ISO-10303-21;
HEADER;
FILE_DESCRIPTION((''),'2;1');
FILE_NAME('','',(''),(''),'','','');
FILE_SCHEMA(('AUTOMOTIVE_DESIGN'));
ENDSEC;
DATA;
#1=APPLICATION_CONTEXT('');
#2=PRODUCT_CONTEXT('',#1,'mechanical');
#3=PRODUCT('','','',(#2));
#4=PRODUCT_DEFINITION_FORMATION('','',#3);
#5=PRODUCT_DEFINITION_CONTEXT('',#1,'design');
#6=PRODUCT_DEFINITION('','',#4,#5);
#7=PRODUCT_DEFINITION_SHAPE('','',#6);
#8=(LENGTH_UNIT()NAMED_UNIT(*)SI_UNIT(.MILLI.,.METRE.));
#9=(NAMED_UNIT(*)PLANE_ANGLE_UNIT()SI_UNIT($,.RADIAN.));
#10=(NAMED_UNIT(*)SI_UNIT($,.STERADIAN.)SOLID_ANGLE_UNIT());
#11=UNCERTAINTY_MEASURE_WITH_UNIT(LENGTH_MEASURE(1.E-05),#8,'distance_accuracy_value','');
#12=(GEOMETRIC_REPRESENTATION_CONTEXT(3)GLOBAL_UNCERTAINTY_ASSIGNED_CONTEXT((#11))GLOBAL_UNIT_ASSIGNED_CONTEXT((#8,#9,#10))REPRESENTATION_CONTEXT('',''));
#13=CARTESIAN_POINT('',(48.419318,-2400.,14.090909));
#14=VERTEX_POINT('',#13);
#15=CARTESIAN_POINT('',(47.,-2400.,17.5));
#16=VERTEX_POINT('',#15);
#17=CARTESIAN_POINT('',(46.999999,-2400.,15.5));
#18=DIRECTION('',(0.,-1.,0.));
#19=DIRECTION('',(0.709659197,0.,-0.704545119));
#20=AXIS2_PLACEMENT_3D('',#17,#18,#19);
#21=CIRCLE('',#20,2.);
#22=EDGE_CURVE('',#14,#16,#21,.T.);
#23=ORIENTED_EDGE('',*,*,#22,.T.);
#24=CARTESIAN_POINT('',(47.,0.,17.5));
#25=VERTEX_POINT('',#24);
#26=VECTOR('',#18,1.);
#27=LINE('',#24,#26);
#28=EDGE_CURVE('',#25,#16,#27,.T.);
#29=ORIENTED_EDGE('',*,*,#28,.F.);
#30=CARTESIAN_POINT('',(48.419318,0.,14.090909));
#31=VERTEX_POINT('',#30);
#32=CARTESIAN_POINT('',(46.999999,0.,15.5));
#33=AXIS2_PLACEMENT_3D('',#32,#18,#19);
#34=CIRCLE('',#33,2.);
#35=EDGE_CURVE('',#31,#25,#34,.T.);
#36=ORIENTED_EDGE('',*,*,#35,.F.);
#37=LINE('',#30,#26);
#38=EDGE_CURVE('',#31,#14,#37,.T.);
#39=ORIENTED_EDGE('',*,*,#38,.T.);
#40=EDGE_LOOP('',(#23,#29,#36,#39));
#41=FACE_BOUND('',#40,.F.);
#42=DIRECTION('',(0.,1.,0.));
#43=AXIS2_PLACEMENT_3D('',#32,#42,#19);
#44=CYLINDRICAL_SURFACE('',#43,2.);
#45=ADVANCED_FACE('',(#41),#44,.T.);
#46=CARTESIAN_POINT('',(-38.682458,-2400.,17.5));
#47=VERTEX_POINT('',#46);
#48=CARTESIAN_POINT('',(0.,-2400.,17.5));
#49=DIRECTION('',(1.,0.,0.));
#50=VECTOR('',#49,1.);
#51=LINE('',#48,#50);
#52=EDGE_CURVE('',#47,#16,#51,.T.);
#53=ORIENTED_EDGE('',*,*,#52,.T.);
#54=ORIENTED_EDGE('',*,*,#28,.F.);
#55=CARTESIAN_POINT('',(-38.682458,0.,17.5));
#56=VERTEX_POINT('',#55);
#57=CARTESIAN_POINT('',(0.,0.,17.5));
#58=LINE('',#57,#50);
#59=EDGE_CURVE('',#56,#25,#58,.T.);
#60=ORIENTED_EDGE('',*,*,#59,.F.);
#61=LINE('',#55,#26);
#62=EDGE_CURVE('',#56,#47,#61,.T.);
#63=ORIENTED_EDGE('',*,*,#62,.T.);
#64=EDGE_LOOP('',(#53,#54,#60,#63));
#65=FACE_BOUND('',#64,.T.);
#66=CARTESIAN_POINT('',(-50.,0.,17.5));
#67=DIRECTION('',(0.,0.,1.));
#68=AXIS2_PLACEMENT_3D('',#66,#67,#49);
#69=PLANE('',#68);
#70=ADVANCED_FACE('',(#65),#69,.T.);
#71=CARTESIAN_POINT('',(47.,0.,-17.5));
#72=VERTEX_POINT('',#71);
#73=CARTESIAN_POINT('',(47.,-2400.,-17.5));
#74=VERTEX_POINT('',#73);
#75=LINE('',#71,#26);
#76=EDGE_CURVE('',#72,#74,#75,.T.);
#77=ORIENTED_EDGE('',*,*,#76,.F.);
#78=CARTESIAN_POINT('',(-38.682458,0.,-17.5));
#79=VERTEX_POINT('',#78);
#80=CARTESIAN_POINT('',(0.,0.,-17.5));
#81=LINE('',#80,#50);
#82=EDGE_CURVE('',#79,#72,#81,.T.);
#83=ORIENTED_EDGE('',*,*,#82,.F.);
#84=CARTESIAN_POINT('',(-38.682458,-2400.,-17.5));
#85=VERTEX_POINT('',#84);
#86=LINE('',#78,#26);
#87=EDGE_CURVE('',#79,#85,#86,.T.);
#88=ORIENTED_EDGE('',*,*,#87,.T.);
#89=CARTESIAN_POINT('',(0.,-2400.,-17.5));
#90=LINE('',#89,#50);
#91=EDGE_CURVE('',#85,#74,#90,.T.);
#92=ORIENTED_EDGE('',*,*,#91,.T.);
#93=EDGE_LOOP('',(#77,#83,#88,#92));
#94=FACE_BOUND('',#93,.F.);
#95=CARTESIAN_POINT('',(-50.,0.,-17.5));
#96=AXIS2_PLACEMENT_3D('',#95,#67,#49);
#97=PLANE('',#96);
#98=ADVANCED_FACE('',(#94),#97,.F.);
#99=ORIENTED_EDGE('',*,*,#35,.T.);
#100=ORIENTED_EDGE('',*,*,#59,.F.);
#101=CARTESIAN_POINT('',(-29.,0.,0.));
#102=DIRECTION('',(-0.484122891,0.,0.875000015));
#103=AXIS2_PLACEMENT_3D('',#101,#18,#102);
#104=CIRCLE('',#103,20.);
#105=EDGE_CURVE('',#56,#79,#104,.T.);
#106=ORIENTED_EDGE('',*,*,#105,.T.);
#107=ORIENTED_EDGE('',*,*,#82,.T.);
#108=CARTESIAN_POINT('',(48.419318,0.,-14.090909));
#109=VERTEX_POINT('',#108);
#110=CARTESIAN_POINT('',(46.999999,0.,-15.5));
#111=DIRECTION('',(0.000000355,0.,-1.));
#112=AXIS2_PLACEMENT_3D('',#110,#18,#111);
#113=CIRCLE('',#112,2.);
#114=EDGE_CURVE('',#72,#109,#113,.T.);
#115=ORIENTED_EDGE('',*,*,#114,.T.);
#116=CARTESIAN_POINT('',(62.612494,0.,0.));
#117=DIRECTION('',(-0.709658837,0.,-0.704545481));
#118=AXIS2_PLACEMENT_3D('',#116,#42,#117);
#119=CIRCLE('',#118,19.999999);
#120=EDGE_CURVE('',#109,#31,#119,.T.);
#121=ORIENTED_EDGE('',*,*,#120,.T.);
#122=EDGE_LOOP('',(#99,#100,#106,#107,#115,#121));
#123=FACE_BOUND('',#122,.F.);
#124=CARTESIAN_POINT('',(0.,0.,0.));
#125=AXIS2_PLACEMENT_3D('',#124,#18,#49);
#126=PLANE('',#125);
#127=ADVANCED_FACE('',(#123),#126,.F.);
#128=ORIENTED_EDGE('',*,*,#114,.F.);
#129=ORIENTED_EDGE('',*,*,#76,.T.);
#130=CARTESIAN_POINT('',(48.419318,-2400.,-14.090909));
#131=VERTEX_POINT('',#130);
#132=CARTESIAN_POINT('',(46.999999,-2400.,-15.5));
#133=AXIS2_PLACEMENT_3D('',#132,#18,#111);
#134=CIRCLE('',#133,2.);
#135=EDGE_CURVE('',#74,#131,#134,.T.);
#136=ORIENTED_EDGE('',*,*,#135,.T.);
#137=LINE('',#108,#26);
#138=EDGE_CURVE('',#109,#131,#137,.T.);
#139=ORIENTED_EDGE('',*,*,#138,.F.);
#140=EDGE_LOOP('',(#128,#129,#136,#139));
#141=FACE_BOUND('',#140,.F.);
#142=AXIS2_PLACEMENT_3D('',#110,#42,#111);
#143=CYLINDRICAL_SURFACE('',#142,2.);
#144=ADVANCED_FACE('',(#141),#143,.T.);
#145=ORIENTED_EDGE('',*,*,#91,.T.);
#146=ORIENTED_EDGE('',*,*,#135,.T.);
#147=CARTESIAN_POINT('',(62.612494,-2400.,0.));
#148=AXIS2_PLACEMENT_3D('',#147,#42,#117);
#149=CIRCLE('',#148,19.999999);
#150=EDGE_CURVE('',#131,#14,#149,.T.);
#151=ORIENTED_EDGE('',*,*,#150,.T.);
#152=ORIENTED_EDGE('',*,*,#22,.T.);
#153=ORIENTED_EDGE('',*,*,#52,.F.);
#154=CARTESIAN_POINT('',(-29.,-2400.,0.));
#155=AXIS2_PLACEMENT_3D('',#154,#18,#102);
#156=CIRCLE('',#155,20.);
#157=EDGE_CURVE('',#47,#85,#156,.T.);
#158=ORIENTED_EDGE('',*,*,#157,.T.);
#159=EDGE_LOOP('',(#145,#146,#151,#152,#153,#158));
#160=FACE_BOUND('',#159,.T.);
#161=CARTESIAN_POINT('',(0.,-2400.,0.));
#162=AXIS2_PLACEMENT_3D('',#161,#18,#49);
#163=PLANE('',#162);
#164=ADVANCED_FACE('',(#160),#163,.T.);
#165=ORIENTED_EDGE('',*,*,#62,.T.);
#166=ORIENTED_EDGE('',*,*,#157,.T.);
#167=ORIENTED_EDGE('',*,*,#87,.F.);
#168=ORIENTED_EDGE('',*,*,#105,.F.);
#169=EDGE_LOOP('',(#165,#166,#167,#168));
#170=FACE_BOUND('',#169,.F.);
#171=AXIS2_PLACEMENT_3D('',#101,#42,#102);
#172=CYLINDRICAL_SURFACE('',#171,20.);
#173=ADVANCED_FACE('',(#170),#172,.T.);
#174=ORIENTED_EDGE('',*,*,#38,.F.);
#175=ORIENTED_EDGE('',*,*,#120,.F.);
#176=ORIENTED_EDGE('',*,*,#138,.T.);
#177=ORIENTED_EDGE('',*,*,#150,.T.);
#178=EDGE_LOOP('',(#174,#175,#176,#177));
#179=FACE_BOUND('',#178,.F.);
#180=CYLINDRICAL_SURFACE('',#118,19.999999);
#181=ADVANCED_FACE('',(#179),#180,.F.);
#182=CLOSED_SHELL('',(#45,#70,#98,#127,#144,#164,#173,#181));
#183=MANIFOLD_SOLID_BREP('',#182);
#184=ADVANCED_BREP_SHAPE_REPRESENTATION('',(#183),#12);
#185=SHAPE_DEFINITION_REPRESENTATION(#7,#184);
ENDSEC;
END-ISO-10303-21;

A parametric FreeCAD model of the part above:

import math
import FreeCAD as App
import Part
import Sketcher
Q = App.Units.Quantity


def add_polygon(sketch, points):
    """Adds a closed chain of lines whose ends are joined by coincident constraints."""
    first, n = sketch.GeometryCount, len(points)
    for a, b in zip(points, points[1:] + points[:1]):
        sketch.addGeometry(Part.LineSegment(App.Vector(*a, 0), App.Vector(*b, 0)), False)
    for i in range(n):
        sketch.addConstraint(Sketcher.Constraint("Coincident", first + i, 2, first + (i + 1) % n, 1))

doc = App.newDocument("Part")
params = doc.addObject("Spreadsheet::Sheet", "Params")
for row, (alias, value) in enumerate([
    ("sketch1_width", "100 mm"),
    ("sketch1_height", "35 mm"),
    ("pad1_length", "2400 mm"),
    ("sketch2_radius", "2 mm"),
    ("sketch2_radius2", "19.999999 mm"),
    ("sketch2_width", "3 mm"),
    ("sketch2_height", "35 mm"),
], start=1):
    params.set(f"A{row}", alias)
    params.set(f"B{row}", "=" + value)
    params.setAlias(f"B{row}", alias)

body = doc.addObject("PartDesign::Body", "Body")

sketch1 = doc.addObject("Sketcher::SketchObject", "Sketch")
body.addObject(sketch1)
sketch1.AttachmentSupport = (doc.XZ_Plane, [""])
sketch1.MapMode = "FlatFace"
add_polygon(sketch1, [(-50, 17.5), (-50, -17.5), (50, -17.5), (50, 17.5)])
sketch1.addConstraint([
    Sketcher.Constraint("Vertical", 0),
    Sketcher.Constraint("Horizontal", 1),
    Sketcher.Constraint("Vertical", 2),
    Sketcher.Constraint("Horizontal", 3),
    Sketcher.Constraint("Symmetric", 0, 2, 2, 2, -1, 1),
    Sketcher.Constraint("DistanceX", 1, 1, 1, 2, Q("100 mm")),
    Sketcher.Constraint("DistanceY", 0, 2, 0, 1, Q("35 mm")),
])
sketch1.setExpression("Constraints[9]", "Params.sketch1_width")
sketch1.setExpression("Constraints[10]", "Params.sketch1_height")
pad1 = doc.addObject("PartDesign::Pad", "Pad")
body.addObject(pad1)
pad1.Profile = sketch1
pad1.setExpression("Length", "Params.pad1_length")

sketch2 = doc.addObject("Sketcher::SketchObject", "Sketch001")
body.addObject(sketch2)
sketch2.AttachmentSupport = (doc.XZ_Plane, [""])
sketch2.MapMode = "FlatFace"
sketch2.addGeometry([
    Part.LineSegment(App.Vector(50, -17.5, 0), App.Vector(47, -17.5, 0)),
    Part.ArcOfCircle(Part.Circle(App.Vector(46.999999, -15.5, 0), App.Vector(0, 0, 1), 2), math.radians(-89.99998), math.radians(44.792807)),
    Part.ArcOfCircle(Part.Circle(App.Vector(62.612494, 0, 0), App.Vector(0, 0, 1), 19.999999), math.radians(135.207164), math.radians(224.792836)),
    Part.ArcOfCircle(Part.Circle(App.Vector(46.999999, 15.5, 0), App.Vector(0, 0, 1), 2), math.radians(-44.792807), math.radians(89.99998)),
    Part.LineSegment(App.Vector(47, 17.5, 0), App.Vector(50, 17.5, 0)),
    Part.LineSegment(App.Vector(50, 17.5, 0), App.Vector(50, -17.5, 0)),
    Part.ArcOfCircle(Part.Circle(App.Vector(-29, 0, 0), App.Vector(0, 0, 1), 20), math.radians(118.955023), math.radians(241.044977)),
    Part.LineSegment(App.Vector(-38.682458, -17.5, 0), App.Vector(-50, -17.5, 0)),
    Part.LineSegment(App.Vector(-50, -17.5, 0), App.Vector(-50, 17.5, 0)),
    Part.LineSegment(App.Vector(-50, 17.5, 0), App.Vector(-38.682458, 17.5, 0)),
], False)
sketch2.addConstraint([
    Sketcher.Constraint("Tangent", 0, 2, 1, 1),
    Sketcher.Constraint("Tangent", 1, 2, 2, 2),
    Sketcher.Constraint("Tangent", 2, 1, 3, 1),
    Sketcher.Constraint("Tangent", 3, 2, 4, 1),
    Sketcher.Constraint("Coincident", 4, 2, 5, 1),
    Sketcher.Constraint("Coincident", 5, 2, 0, 1),
    Sketcher.Constraint("Coincident", 6, 2, 7, 1),
    Sketcher.Constraint("Coincident", 7, 2, 8, 1),
    Sketcher.Constraint("Coincident", 8, 2, 9, 1),
    Sketcher.Constraint("Coincident", 9, 2, 6, 1),
    Sketcher.Constraint("Horizontal", 0),
    Sketcher.Constraint("Horizontal", 4),
    Sketcher.Constraint("Vertical", 5),
    Sketcher.Constraint("Horizontal", 7),
    Sketcher.Constraint("Vertical", 8),
    Sketcher.Constraint("Horizontal", 9),
    Sketcher.Constraint("Equal", 1, 3),
    Sketcher.Constraint("Equal", 2, 6),
    Sketcher.Constraint("Symmetric", 4, 2, 7, 2, -1, 1),
    Sketcher.Constraint("Symmetric", 1, 3, 3, 3, -1),
    Sketcher.Constraint("Symmetric", 6, 2, 9, 2, -1),
    Sketcher.Constraint("Radius", 1, Q("2 mm")),
    Sketcher.Constraint("Radius", 2, Q("19.999999 mm")),
    Sketcher.Constraint("DistanceX", 0, 2, 0, 1, Q("3 mm")),
    Sketcher.Constraint("DistanceY", 5, 2, 5, 1, Q("35 mm")),
    Sketcher.Constraint("DistanceX", -1, 1, 1, 3, Q("46.999999 mm")),
    Sketcher.Constraint("DistanceX", 6, 3, -1, 1, Q("29 mm")),
])
sketch2.setExpression("Constraints[21]", "Params.sketch2_radius")
sketch2.setExpression("Constraints[22]", "Params.sketch2_radius2")
sketch2.setExpression("Constraints[23]", "Params.sketch2_width")
sketch2.setExpression("Constraints[24]", "Params.sketch2_height")
pocket1 = doc.addObject("PartDesign::Pocket", "Pocket")
body.addObject(pocket1)
pocket1.Profile = sketch2
pocket1.Type = "ThroughAll"
pocket1.Reversed = True

doc.recompute()
